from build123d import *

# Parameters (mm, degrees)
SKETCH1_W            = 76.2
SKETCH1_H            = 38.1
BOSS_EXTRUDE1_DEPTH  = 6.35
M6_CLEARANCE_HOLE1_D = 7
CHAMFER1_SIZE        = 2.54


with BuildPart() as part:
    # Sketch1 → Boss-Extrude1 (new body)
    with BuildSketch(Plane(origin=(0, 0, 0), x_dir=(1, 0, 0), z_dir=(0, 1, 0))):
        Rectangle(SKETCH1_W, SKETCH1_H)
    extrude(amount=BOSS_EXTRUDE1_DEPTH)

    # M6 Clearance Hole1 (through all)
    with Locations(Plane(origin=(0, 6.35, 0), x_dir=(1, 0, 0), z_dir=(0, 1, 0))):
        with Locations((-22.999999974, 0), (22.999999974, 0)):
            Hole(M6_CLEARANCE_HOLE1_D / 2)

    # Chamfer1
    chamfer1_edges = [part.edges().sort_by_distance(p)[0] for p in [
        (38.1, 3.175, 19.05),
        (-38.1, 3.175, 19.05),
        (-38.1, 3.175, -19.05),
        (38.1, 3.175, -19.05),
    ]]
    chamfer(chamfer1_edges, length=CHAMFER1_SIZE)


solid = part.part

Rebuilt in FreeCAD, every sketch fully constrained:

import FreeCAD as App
import Part
import Sketcher
Q = App.Units.Quantity


def edges_at(feature, points):
    """Names of the edges that pass closest to the given points."""
    edges = feature.Shape.Edges
    near = lambda p: min(range(len(edges)), key=lambda i: edges[i].distToShape(Part.Vertex(*p))[0])
    return sorted({f"Edge{near(p) + 1}" for p in points})

doc = App.newDocument("Part")
body = doc.addObject("PartDesign::Body", "Body")

sketch1 = body.newObject("Sketcher::SketchObject", "Sketch")
sketch1.AttachmentSupport = (doc.getObject("XZ_Plane"), [""])
sketch1.MapMode = "FlatFace"
sketch1.addGeometry(Part.LineSegment(App.Vector(-38, -19, 0), App.Vector(-38, 19, 0)), False)
sketch1.addGeometry(Part.LineSegment(App.Vector(-38, 19, 0), App.Vector(38, 19, 0)), False)
sketch1.addGeometry(Part.LineSegment(App.Vector(38, 19, 0), App.Vector(38, -19, 0)), False)
sketch1.addGeometry(Part.LineSegment(App.Vector(38, -19, 0), App.Vector(-38, -19, 0)), False)
sketch1.addConstraint(Sketcher.Constraint("Coincident", 0, 2, 1, 1))
sketch1.addConstraint(Sketcher.Constraint("Coincident", 1, 2, 2, 1))
sketch1.addConstraint(Sketcher.Constraint("Coincident", 2, 2, 3, 1))
sketch1.addConstraint(Sketcher.Constraint("Coincident", 3, 2, 0, 1))
sketch1.addConstraint(Sketcher.Constraint("Vertical", 0))
sketch1.addConstraint(Sketcher.Constraint("Horizontal", 1))
sketch1.addConstraint(Sketcher.Constraint("Vertical", 2))
sketch1.addConstraint(Sketcher.Constraint("Horizontal", 3))
sketch1.addConstraint(Sketcher.Constraint("Symmetric", 0, 2, 2, 2, -1, 1))
sketch1.addConstraint(Sketcher.Constraint("DistanceX", 1, 1, 1, 2, Q("3 in")))
sketch1.addConstraint(Sketcher.Constraint("DistanceY", 0, 1, 0, 2, Q("1.5 in")))
pad1 = body.newObject("PartDesign::Pad", "Pad")
pad1.Profile = sketch1
pad1.Length = Q("0.25 in")
pad1.Reversed = True

sketch2 = body.newObject("Sketcher::SketchObject", "Sketch001")
sketch2.AttachmentSupport = (doc.getObject("XZ_Plane"), [""])
sketch2.MapMode = "FlatFace"
sketch2.AttachmentOffset = App.Placement(App.Vector(0, 0, -0.25 * 25.4), App.Rotation())
sketch2.addGeometry(Part.Circle(App.Vector(-23, 0, 0), App.Vector(0, 0, 1), 3.5), False)
sketch2.addGeometry(Part.Circle(App.Vector(23, 0, 0), App.Vector(0, 0, 1), 3.5), False)
sketch2.addConstraint(Sketcher.Constraint("Equal", 0, 1))
sketch2.addConstraint(Sketcher.Constraint("Symmetric", 0, 3, 1, 3, -1, 1))
sketch2.addConstraint(Sketcher.Constraint("PointOnObject", 0, 3, -1))
sketch2.addConstraint(Sketcher.Constraint("Diameter", 0, 7.0))
sketch2.addConstraint(Sketcher.Constraint("DistanceX", 0, 3, -1, 1, 23.0))
doc.recompute()
hole = body.newObject("PartDesign::Hole", "Hole")
hole.Profile = sketch2
hole.ThreadType = "None"
hole.Diameter = 7
hole.DepthType = "ThroughAll"
hole.Reversed = True
doc.recompute()

chamfer = body.newObject("PartDesign::Chamfer", "Chamfer")
chamfer.Base = (hole, edges_at(hole, [
    (38.1, 3.175, 19.05),
    (-38.1, 3.175, 19.05),
    (-38.1, 3.175, -19.05),
    (38.1, 3.175, -19.05),
]))
chamfer.Size = Q("0.1 in")

doc.recompute()
